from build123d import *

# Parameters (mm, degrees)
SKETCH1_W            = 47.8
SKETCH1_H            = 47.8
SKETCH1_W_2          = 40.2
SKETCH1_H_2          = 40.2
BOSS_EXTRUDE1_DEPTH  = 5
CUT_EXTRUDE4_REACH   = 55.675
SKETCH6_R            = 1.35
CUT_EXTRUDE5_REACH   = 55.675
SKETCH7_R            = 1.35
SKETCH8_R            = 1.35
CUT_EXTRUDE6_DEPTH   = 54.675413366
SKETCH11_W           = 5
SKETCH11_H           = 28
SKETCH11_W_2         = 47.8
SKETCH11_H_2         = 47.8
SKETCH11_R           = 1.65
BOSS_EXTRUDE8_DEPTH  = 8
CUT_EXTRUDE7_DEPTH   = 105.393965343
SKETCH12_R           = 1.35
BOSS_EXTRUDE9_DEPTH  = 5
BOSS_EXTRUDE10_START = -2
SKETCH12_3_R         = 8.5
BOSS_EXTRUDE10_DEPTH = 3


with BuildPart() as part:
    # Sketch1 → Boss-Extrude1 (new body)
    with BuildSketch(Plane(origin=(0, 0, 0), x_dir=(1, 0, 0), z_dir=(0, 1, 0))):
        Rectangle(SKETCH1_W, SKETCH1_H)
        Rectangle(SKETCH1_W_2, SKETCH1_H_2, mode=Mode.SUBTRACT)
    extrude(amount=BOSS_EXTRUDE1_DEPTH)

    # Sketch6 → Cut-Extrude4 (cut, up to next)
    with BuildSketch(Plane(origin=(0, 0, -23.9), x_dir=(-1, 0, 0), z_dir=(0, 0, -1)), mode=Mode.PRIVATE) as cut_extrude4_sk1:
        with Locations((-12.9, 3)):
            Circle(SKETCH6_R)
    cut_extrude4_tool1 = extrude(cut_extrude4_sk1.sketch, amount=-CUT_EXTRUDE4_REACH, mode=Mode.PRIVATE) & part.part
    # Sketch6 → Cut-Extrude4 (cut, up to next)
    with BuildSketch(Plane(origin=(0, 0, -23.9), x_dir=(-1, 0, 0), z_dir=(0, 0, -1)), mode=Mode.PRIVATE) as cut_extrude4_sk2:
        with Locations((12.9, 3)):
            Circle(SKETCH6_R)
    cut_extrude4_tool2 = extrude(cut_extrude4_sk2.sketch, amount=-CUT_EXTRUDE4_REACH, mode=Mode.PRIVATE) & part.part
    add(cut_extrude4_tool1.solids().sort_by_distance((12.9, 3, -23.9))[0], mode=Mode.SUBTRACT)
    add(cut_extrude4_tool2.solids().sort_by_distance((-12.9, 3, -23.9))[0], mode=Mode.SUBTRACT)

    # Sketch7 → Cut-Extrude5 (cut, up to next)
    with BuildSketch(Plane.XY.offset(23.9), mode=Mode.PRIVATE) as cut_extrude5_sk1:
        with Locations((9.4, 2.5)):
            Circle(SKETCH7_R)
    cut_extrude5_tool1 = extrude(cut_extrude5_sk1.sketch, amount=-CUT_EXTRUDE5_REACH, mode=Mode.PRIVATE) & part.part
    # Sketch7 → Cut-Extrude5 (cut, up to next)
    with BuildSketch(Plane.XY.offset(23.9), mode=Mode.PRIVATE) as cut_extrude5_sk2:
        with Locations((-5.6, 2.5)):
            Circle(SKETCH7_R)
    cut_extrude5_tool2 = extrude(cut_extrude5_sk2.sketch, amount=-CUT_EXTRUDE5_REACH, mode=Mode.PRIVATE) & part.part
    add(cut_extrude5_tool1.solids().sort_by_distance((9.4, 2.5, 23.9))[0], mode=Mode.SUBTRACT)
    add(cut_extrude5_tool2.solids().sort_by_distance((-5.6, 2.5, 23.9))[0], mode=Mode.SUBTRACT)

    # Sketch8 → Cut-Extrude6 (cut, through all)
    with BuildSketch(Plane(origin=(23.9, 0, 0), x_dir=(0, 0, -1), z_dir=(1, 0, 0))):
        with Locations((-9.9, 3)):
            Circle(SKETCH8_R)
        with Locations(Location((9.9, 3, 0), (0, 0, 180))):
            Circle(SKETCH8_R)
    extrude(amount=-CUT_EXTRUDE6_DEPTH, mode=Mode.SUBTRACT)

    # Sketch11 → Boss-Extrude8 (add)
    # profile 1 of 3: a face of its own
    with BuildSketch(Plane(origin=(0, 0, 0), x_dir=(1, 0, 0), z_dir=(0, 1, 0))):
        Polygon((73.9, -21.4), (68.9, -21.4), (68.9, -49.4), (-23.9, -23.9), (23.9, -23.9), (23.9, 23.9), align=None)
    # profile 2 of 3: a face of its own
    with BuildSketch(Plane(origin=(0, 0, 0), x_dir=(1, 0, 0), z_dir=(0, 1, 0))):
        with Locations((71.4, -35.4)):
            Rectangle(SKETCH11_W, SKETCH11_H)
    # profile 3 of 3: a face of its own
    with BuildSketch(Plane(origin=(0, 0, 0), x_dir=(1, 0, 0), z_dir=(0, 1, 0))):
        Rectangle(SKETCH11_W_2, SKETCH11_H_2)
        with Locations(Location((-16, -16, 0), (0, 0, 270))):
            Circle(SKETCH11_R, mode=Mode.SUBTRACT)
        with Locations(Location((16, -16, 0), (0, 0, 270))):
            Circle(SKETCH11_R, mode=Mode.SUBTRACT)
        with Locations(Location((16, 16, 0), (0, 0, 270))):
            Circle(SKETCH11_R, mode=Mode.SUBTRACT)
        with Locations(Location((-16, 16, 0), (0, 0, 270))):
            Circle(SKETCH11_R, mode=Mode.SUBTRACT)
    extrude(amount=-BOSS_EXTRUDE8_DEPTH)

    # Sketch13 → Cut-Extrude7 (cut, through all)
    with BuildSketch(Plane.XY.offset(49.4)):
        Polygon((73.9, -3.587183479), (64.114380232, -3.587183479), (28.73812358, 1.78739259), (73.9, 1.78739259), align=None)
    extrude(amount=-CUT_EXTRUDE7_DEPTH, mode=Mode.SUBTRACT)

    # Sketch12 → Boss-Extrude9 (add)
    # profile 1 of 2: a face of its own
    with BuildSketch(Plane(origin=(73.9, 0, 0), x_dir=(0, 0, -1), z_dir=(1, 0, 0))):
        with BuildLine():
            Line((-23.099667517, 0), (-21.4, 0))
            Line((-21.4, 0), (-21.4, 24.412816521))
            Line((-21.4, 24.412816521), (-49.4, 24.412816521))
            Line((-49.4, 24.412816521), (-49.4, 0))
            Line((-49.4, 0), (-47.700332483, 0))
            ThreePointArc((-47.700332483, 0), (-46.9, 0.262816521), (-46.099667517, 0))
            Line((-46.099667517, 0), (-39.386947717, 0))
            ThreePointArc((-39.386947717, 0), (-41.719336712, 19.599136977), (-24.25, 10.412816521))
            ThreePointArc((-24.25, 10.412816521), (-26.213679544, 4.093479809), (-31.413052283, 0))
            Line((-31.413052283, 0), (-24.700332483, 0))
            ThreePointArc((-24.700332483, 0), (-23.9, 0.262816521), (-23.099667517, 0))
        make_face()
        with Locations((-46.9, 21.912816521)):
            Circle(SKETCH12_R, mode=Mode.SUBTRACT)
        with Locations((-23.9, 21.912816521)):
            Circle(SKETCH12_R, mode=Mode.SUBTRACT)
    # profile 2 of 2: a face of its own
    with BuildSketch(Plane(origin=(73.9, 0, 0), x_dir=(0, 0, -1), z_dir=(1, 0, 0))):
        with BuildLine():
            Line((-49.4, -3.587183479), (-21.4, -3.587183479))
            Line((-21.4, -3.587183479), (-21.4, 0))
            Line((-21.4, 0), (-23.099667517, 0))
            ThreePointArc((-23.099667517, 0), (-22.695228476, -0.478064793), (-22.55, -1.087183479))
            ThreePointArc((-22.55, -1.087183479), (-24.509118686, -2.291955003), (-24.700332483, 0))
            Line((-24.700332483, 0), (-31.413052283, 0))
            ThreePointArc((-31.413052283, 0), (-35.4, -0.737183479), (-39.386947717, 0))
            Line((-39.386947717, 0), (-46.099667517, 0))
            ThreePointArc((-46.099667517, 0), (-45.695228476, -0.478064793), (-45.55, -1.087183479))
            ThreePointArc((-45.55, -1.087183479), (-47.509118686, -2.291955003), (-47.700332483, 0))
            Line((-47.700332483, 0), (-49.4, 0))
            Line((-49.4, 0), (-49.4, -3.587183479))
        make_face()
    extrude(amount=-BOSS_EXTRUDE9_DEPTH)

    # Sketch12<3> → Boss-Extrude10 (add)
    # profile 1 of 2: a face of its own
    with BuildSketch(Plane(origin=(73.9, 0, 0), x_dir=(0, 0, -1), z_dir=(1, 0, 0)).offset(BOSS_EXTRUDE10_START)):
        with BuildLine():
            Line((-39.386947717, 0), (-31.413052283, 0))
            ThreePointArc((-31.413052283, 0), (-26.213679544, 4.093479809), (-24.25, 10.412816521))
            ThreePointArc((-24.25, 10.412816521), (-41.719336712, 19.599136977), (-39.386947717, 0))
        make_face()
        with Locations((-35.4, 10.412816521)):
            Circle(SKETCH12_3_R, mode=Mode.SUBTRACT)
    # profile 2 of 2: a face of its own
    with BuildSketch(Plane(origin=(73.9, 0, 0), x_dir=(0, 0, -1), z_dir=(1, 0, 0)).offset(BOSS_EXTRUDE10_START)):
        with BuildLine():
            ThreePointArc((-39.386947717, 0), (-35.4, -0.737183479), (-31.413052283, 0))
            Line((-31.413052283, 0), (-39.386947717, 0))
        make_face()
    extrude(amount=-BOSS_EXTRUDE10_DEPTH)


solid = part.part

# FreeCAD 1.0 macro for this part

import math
import FreeCAD as App
import Part
import Sketcher

V = App.Vector
Q = App.Units.Quantity


def add_polygon(sketch, points):
    """Adds a closed chain of lines whose ends are joined by coincident constraints."""
    first, n = sketch.GeometryCount, len(points)
    for a, b in zip(points, points[1:] + points[:1]):
        sketch.addGeometry(Part.LineSegment(App.Vector(*a, 0), App.Vector(*b, 0)), False)
    for i in range(n):
        sketch.addConstraint(Sketcher.Constraint("Coincident", first + i, 2, first + (i + 1) % n, 1))

doc = App.newDocument("Part")
params = doc.addObject("Spreadsheet::Sheet", "Params")
for row, (alias, value) in enumerate([
    ("sketch1_width", "47.8 mm"),
    ("sketch1_width2", "40.2 mm"),
    ("pad1_length", "5 mm"),
    ("sketch2_diameter", "2.7 mm"),
    ("sketch3_diameter", "2.7 mm"),
    ("sketch4_diameter", "2.7 mm"),
    ("sketch5_diameter", "2.7 mm"),
    ("sketch6_diameter", "2.7 mm"),
    ("sketch7_diameter", "3.3 mm"),
    ("sketch7_width", "5 mm"),
    ("sketch7_height", "28 mm"),
    ("sketch7_width2", "47.8 mm"),
    ("pad2_length", "8 mm"),
    ("sketch9_diameter", "2.7 mm"),
    ("sketch9_width", "28 mm"),
    ("sketch9_radius", "11.15 mm"),
    ("pad3_length", "5 mm"),
    ("sketch10_diameter", "17 mm"),
    ("sketch10_radius", "11.15 mm"),
    ("pad4_length", "3 mm"),
], start=1):
    params.set(f"A{row}", alias)
    params.set(f"B{row}", "=" + value)
    params.setAlias(f"B{row}", alias)

body = doc.addObject("PartDesign::Body", "Body")

# Sketch on XZ plane
sketch1 = doc.addObject("Sketcher::SketchObject", "Sketch")
body.addObject(sketch1)
sketch1.AttachmentSupport = (doc.XZ_Plane, [""])
sketch1.MapMode = "FlatFace"
add_polygon(sketch1, [(-24, -24), (-24, 24), (24, 24), (24, -24)])  # lines 0-3
add_polygon(sketch1, [(20, 20), (-20, 20), (-20, -20), (20, -20)])  # lines 4-7
sketch1.addConstraint([
    Sketcher.Constraint("Vertical", 0),
    Sketcher.Constraint("Horizontal", 1),
    Sketcher.Constraint("Vertical", 2),
    Sketcher.Constraint("Horizontal", 3),
    Sketcher.Constraint("Horizontal", 4),
    Sketcher.Constraint("Vertical", 5),
    Sketcher.Constraint("Horizontal", 6),
    Sketcher.Constraint("Vertical", 7),
    Sketcher.Constraint("Symmetric", 0, 2, 2, 2, -1, 1),
    Sketcher.Constraint("Symmetric", 4, 2, 6, 2, -1, 1),
    Sketcher.Constraint("Equal", 3, 0),
    Sketcher.Constraint("Equal", 6, 5),
    Sketcher.Constraint("DistanceX", 1, 1, 1, 2, Q("47.8 mm")),
    Sketcher.Constraint("DistanceX", 4, 2, 4, 1, Q("40.2 mm")),
])
sketch1.setExpression("Constraints[20]", "Params.sketch1_width")
sketch1.setExpression("Constraints[21]", "Params.sketch1_width2")
pad1 = doc.addObject("PartDesign::Pad", "Pad")
body.addObject(pad1)
pad1.Profile = sketch1
pad1.setExpression("Length", "Params.pad1_length")
pad1.Reversed = True

# Sketch on XY plane
sketch2 = doc.addObject("Sketcher::SketchObject", "Sketch001")
body.addObject(sketch2)
sketch2.AttachmentSupport = (doc.XY_Plane, [""])
sketch2.MapMode = "FlatFace"
sketch2.AttachmentOffset = App.Placement(V(0, 0, -23.9), App.Rotation())
sketch2.addGeometry(Part.Circle(V(12.9, 3, 0), V(0, 0, 1), 1.4), False)
sketch2.addConstraint([
    Sketcher.Constraint("Diameter", 0, Q("2.7 mm")),
    Sketcher.Constraint("DistanceY", -1, 1, 0, 3, Q("3 mm")),
    Sketcher.Constraint("DistanceX", -1, 1, 0, 3, Q("12.9 mm")),
])
sketch2.setExpression("Constraints[0]", "Params.sketch2_diameter")
pocket1 = doc.addObject("PartDesign::Pocket", "Pocket")
body.addObject(pocket1)
pocket1.Profile = sketch2
pocket1.Type = "UpToFirst"
pocket1.Reversed = True

# Sketch on XY plane
sketch3 = doc.addObject("Sketcher::SketchObject", "Sketch002")
body.addObject(sketch3)
sketch3.AttachmentSupport = (doc.XY_Plane, [""])
sketch3.MapMode = "FlatFace"
sketch3.AttachmentOffset = App.Placement(V(0, 0, -23.9), App.Rotation())
sketch3.addGeometry(Part.Circle(V(-12.9, 3, 0), V(0, 0, 1), 1.4), False)
sketch3.addConstraint([
    Sketcher.Constraint("Diameter", 0, Q("2.7 mm")),
    Sketcher.Constraint("DistanceY", -1, 1, 0, 3, Q("3 mm")),
    Sketcher.Constraint("DistanceX", 0, 3, -1, 1, Q("12.9 mm")),
])
sketch3.setExpression("Constraints[0]", "Params.sketch3_diameter")
pocket2 = doc.addObject("PartDesign::Pocket", "Pocket001")
body.addObject(pocket2)
pocket2.Profile = sketch3
pocket2.Type = "UpToFirst"
pocket2.Reversed = True

# Sketch on XY plane
sketch4 = doc.addObject("Sketcher::SketchObject", "Sketch003")
body.addObject(sketch4)
sketch4.AttachmentSupport = (doc.XY_Plane, [""])
sketch4.MapMode = "FlatFace"
sketch4.AttachmentOffset = App.Placement(V(0, 0, 23.9), App.Rotation())
sketch4.addGeometry(Part.Circle(V(9.4, 2.5, 0), V(0, 0, 1), 1.4), False)
sketch4.addConstraint([
    Sketcher.Constraint("Diameter", 0, Q("2.7 mm")),
    Sketcher.Constraint("DistanceX", -1, 1, 0, 3, Q("9.4 mm")),
    Sketcher.Constraint("DistanceY", -1, 1, 0, 3, Q("2.5 mm")),
])
sketch4.setExpression("Constraints[0]", "Params.sketch4_diameter")
pocket3 = doc.addObject("PartDesign::Pocket", "Pocket002")
body.addObject(pocket3)
pocket3.Profile = sketch4
pocket3.Type = "UpToFirst"

# Sketch on XY plane
sketch5 = doc.addObject("Sketcher::SketchObject", "Sketch004")
body.addObject(sketch5)
sketch5.AttachmentSupport = (doc.XY_Plane, [""])
sketch5.MapMode = "FlatFace"
sketch5.AttachmentOffset = App.Placement(V(0, 0, 23.9), App.Rotation())
sketch5.addGeometry(Part.Circle(V(-5.6, 2.5, 0), V(0, 0, 1), 1.4), False)
sketch5.addConstraint([
    Sketcher.Constraint("Diameter", 0, Q("2.7 mm")),
    Sketcher.Constraint("DistanceX", 0, 3, -1, 1, Q("5.6 mm")),
    Sketcher.Constraint("DistanceY", -1, 1, 0, 3, Q("2.5 mm")),
])
sketch5.setExpression("Constraints[0]", "Params.sketch5_diameter")
pocket4 = doc.addObject("PartDesign::Pocket", "Pocket003")
body.addObject(pocket4)
pocket4.Profile = sketch5
pocket4.Type = "UpToFirst"

# Sketch on YZ plane
sketch6 = doc.addObject("Sketcher::SketchObject", "Sketch005")
body.addObject(sketch6)
sketch6.AttachmentSupport = (doc.YZ_Plane, [""])
sketch6.MapMode = "FlatFace"
sketch6.AttachmentOffset = App.Placement(V(0, 0, 23.9), App.Rotation())
sketch6.addGeometry([
    Part.Circle(V(3, 9.9, 0), V(0, 0, 1), 1.4),
    Part.Circle(V(3, -9.9, 0), V(0, 0, 1), 1.4),
], False)
sketch6.addConstraint([
    Sketcher.Constraint("Equal", 0, 1),
    Sketcher.Constraint("Symmetric", 0, 3, 1, 3, -1),
    Sketcher.Constraint("Diameter", 0, Q("2.7 mm")),
    Sketcher.Constraint("DistanceX", -1, 1, 0, 3, Q("3 mm")),
    Sketcher.Constraint("DistanceY", -1, 1, 0, 3, Q("9.9 mm")),
])
sketch6.setExpression("Constraints[2]", "Params.sketch6_diameter")
pocket5 = doc.addObject("PartDesign::Pocket", "Pocket004")
body.addObject(pocket5)
pocket5.Profile = sketch6
pocket5.Type = "ThroughAll"

# Sketch on XZ plane
sketch7 = doc.addObject("Sketcher::SketchObject", "Sketch006")
body.addObject(sketch7)
sketch7.AttachmentSupport = (doc.XZ_Plane, [""])
sketch7.MapMode = "FlatFace"
add_polygon(sketch7, [(-23.9, 23.9), (68.9, 49.4), (73.9, 49.4), (73.9, 21.4), (23.9, -23.9), (-23.9, -23.9)])  # lines 0-5
sketch7.addGeometry(Part.Circle(V(16, -16, 0), V(0, 0, 1), 1.6), False)  # 6
sketch7.addGeometry(Part.Circle(V(-16, -16, 0), V(0, 0, 1), 1.6), False)  # 7
sketch7.addGeometry(Part.Circle(V(-16, 16, 0), V(0, 0, 1), 1.6), False)  # 8
sketch7.addGeometry(Part.Circle(V(16, 16, 0), V(0, 0, 1), 1.6), False)  # 9
sketch7.addConstraint([
    Sketcher.Constraint("Horizontal", 1),
    Sketcher.Constraint("Vertical", 2),
    Sketcher.Constraint("Horizontal", 4),
    Sketcher.Constraint("Vertical", 5),
    Sketcher.Constraint("Equal", 6, 7),
    Sketcher.Constraint("Equal", 7, 8),
    Sketcher.Constraint("Equal", 8, 9),
    Sketcher.Constraint("Symmetric", 6, 3, 8, 3, -1, 1),
    Sketcher.Constraint("Symmetric", 7, 3, 9, 3, -1, 1),
    Sketcher.Constraint("Symmetric", 3, 2, 5, 2, -1, 1),
    Sketcher.Constraint("Symmetric", 6, 3, 7, 3, -2),
    Sketcher.Constraint("Equal", 4, 5),
    Sketcher.Constraint("Diameter", 6, Q("3.3 mm")),
    Sketcher.Constraint("DistanceX", 1, 1, 1, 2, Q("5 mm")),
    Sketcher.Constraint("DistanceY", 2, 2, 2, 1, Q("28 mm")),
    Sketcher.Constraint("DistanceX", 4, 2, 4, 1, Q("47.8 mm")),
    Sketcher.Constraint("DistanceX", -1, 1, 6, 3, Q("16 mm")),
    Sketcher.Constraint("DistanceY", 6, 3, -1, 1, Q("16 mm")),
    Sketcher.Constraint("DistanceX", 3, 2, 2, 2, Q("50 mm")),
    Sketcher.Constraint("DistanceY", -1, 1, 0, 2, Q("49.4 mm")),
])
sketch7.setExpression("Constraints[18]", "Params.sketch7_diameter")
sketch7.setExpression("Constraints[19]", "Params.sketch7_width")
sketch7.setExpression("Constraints[20]", "Params.sketch7_height")
sketch7.setExpression("Constraints[21]", "Params.sketch7_width2")
pad2 = doc.addObject("PartDesign::Pad", "Pad001")
body.addObject(pad2)
pad2.Profile = sketch7
pad2.setExpression("Length", "Params.pad2_length")

# Sketch on XY plane
sketch8 = doc.addObject("Sketcher::SketchObject", "Sketch007")
body.addObject(sketch8)
sketch8.AttachmentSupport = (doc.XY_Plane, [""])
sketch8.MapMode = "FlatFace"
sketch8.AttachmentOffset = App.Placement(V(0, 0, 49.4), App.Rotation())
add_polygon(sketch8, [(64, -4), (74, -4), (74, 2), (29, 2)])  # lines 0-3
sketch8.addConstraint([
    Sketcher.Constraint("Horizontal", 0),
    Sketcher.Constraint("Vertical", 1),
    Sketcher.Constraint("Horizontal", 2),
    Sketcher.Constraint("DistanceX", -1, 1, 0, 2, Q("73.9 mm")),
    Sketcher.Constraint("DistanceX", 0, 1, 0, 2, Q("9.78562 mm")),
    Sketcher.Constraint("DistanceX", 2, 2, 2, 1, Q("45.161876 mm")),
    Sketcher.Constraint("DistanceY", 1, 1, 1, 2, Q("5.374576 mm")),
    Sketcher.Constraint("DistanceY", 0, 2, -1, 1, Q("3.587183 mm")),
])
pocket6 = doc.addObject("PartDesign::Pocket", "Pocket005")
body.addObject(pocket6)
pocket6.Profile = sketch8
pocket6.Type = "ThroughAll"

# Sketch on YZ plane
sketch9 = doc.addObject("Sketcher::SketchObject", "Sketch008")
body.addObject(sketch9)
sketch9.AttachmentSupport = (doc.YZ_Plane, [""])
sketch9.MapMode = "FlatFace"
sketch9.AttachmentOffset = App.Placement(V(0, 0, 73.9), App.Rotation())
add_polygon(sketch9, [(24.4, 21.4), (24.4, 49.4), (-3.6, 49.4), (-3.6, 21.4)])  # lines 0-3
sketch9.addGeometry(Part.ArcOfCircle(Part.Circle(V(-1.1, 23.9, 0), V(0, 0, 1), 1.4), math.radians(-36), math.radians(36)), False)  # 4
sketch9.addGeometry(Part.ArcOfCircle(Part.Circle(V(-1.1, 23.9, 0), V(0, 0, 1), 1.4), math.radians(-90), math.radians(-36)), False)  # 5
sketch9.addGeometry(Part.ArcOfCircle(Part.Circle(V(-1.1, 23.9, 0), V(0, 0, 1), 1.4), math.radians(36), math.radians(270)), False)  # 6
sketch9.addGeometry(Part.ArcOfCircle(Part.Circle(V(10.4, 35.4, 0), V(0, 0, 1), 11.2), math.radians(-159), math.radians(-90)), False)  # 7
sketch9.addGeometry(Part.ArcOfCircle(Part.Circle(V(10.4, 35.4, 0), V(0, 0, 1), 11.1), math.radians(159), math.radians(201)), False)  # 8
sketch9.addGeometry(Part.ArcOfCircle(Part.Circle(V(10.4, 35.4, 0), V(0, 0, 1), 11.2), math.radians(-90), math.radians(159)), False)  # 9
sketch9.addGeometry(Part.ArcOfCircle(Part.Circle(V(-1.1, 46.9, 0), V(0, 0, 1), 1.4), math.radians(-36), math.radians(36)), False)  # 10
sketch9.addGeometry(Part.ArcOfCircle(Part.Circle(V(-1.1, 46.9, 0), V(0, 0, 1), 1.4), math.radians(-90), math.radians(-36)), False)  # 11
sketch9.addGeometry(Part.ArcOfCircle(Part.Circle(V(-1.1, 46.9, 0), V(0, 0, 1), 1.4), math.radians(36), math.radians(270)), False)  # 12
sketch9.addGeometry(Part.Circle(V(21.9, 46.9, 0), V(0, 0, 1), 1.4), False)  # 13
sketch9.addGeometry(Part.Circle(V(21.9, 23.9, 0), V(0, 0, 1), 1.4), False)  # 14
sketch9.addConstraint([
    Sketcher.Constraint("Tangent", 4, 1, 5, 2),
    Sketcher.Constraint("Tangent", 5, 1, 6, 2),
    Sketcher.Constraint("Tangent", 6, 1, 4, 2),
    Sketcher.Constraint("Tangent", 7, 1, 8, 2),
    Sketcher.Constraint("Tangent", 8, 1, 9, 2),
    Sketcher.Constraint("Tangent", 9, 1, 7, 2),
    Sketcher.Constraint("Tangent", 10, 1, 11, 2),
    Sketcher.Constraint("Tangent", 11, 1, 12, 2),
    Sketcher.Constraint("Tangent", 12, 1, 10, 2),
    Sketcher.Constraint("Vertical", 0),
    Sketcher.Constraint("Horizontal", 1),
    Sketcher.Constraint("Vertical", 2),
    Sketcher.Constraint("Horizontal", 3),
    Sketcher.Constraint("Equal", 6, 10),
    Sketcher.Constraint("Equal", 12, 13),
    Sketcher.Constraint("Equal", 13, 14),
    Sketcher.Constraint("PointOnObject", 4, 1, -2),
    Sketcher.Constraint("PointOnObject", 6, 1, -2),
    Sketcher.Constraint("PointOnObject", 7, 1, -2),
    Sketcher.Constraint("PointOnObject", 8, 1, -2),
    Sketcher.Constraint("PointOnObject", 10, 1, -2),
    Sketcher.Constraint("PointOnObject", 12, 1, -2),
    Sketcher.Constraint("Horizontal", 12, 3, 13, 3),
    Sketcher.Constraint("Horizontal", 6, 3, 14, 3),
    Sketcher.Constraint("Vertical", 6, 3, 10, 3),
    Sketcher.Constraint("Vertical", 13, 3, 14, 3),
    Sketcher.Constraint("Vertical", 12, 3, 5, 1),
    Sketcher.Constraint("Vertical", 8, 3, 9, 1),
    Sketcher.Constraint("Vertical", 5, 1, 11, 1),
    Sketcher.Constraint("Equal", 3, 0),
    Sketcher.Constraint("Diameter", 13, Q("2.7 mm")),
    Sketcher.Constraint("DistanceX", 1, 2, 1, 1, Q("28 mm")),
    Sketcher.Constraint("Radius", 7, Q("11.15 mm")),
    Sketcher.Constraint("DistanceY", 5, 3, 10, 3, Q("23 mm")),
    Sketcher.Constraint("DistanceX", 12, 3, 13, 3, Q("23 mm")),
    Sketcher.Constraint("DistanceX", 7, 3, 0, 2, Q("14 mm")),
    Sketcher.Constraint("DistanceY", 7, 3, 0, 2, Q("14 mm")),
    Sketcher.Constraint("DistanceY", -1, 1, 4, 3, Q("23.9 mm")),
    Sketcher.Constraint("DistanceY", -1, 1, 7, 3, Q("35.4 mm")),
    Sketcher.Constraint("DistanceX", 5, 3, 7, 3, Q("11.5 mm")),
    Sketcher.Constraint("DistanceY", 6, 1, 7, 1, Q("6.71272 mm")),
])
sketch9.setExpression("Constraints[34]", "Params.sketch9_diameter")
sketch9.setExpression("Constraints[35]", "Params.sketch9_width")
sketch9.setExpression("Constraints[36]", "Params.sketch9_radius")
pad3 = doc.addObject("PartDesign::Pad", "Pad002")
body.addObject(pad3)
pad3.Profile = sketch9
pad3.setExpression("Length", "Params.pad3_length")
pad3.Reversed = True

# Sketch on YZ plane
sketch10 = doc.addObject("Sketcher::SketchObject", "Sketch009")
body.addObject(sketch10)
sketch10.AttachmentSupport = (doc.YZ_Plane, [""])
sketch10.MapMode = "FlatFace"
sketch10.AttachmentOffset = App.Placement(V(0, 0, 71.9), App.Rotation())
sketch10.addGeometry([
    Part.ArcOfCircle(Part.Circle(V(10, 35, 0), V(0, 0, 1), 11), math.radians(-90), math.radians(159)),
    Part.ArcOfCircle(Part.Circle(V(10, 35, 0), V(0, 0, 1), 11), math.radians(159), math.radians(201)),
    Part.ArcOfCircle(Part.Circle(V(10, 35, 0), V(0, 0, 1), 11), math.radians(-159), math.radians(-90)),
    Part.Circle(V(10, 35, 0), V(0, 0, 1), 8),
], False)
sketch10.addConstraint([
    Sketcher.Constraint("Tangent", 0, 2, 1, 1),
    Sketcher.Constraint("Tangent", 1, 2, 2, 1),
    Sketcher.Constraint("Tangent", 2, 2, 0, 1),
    Sketcher.Constraint("Coincident", 3, 3, 0, 3),
    Sketcher.Constraint("PointOnObject", 0, 2, -2),
    Sketcher.Constraint("PointOnObject", 1, 2, -2),
    Sketcher.Constraint("Vertical", 3, 3, 2, 2),
    Sketcher.Constraint("Diameter", 3, Q("17 mm")),
    Sketcher.Constraint("Radius", 0, Q("11.15 mm")),
    Sketcher.Constraint("DistanceY", -1, 1, 0, 3, Q("35.4 mm")),
    Sketcher.Constraint("DistanceX", -1, 1, 0, 3, Q("10.412817 mm")),
])
sketch10.setExpression("Constraints[7]", "Params.sketch10_diameter")
sketch10.setExpression("Constraints[8]", "Params.sketch10_radius")
pad4 = doc.addObject("PartDesign::Pad", "Pad003")
body.addObject(pad4)
pad4.Profile = sketch10
pad4.setExpression("Length", "Params.pad4_length")
pad4.Reversed = True

doc.recompute()
